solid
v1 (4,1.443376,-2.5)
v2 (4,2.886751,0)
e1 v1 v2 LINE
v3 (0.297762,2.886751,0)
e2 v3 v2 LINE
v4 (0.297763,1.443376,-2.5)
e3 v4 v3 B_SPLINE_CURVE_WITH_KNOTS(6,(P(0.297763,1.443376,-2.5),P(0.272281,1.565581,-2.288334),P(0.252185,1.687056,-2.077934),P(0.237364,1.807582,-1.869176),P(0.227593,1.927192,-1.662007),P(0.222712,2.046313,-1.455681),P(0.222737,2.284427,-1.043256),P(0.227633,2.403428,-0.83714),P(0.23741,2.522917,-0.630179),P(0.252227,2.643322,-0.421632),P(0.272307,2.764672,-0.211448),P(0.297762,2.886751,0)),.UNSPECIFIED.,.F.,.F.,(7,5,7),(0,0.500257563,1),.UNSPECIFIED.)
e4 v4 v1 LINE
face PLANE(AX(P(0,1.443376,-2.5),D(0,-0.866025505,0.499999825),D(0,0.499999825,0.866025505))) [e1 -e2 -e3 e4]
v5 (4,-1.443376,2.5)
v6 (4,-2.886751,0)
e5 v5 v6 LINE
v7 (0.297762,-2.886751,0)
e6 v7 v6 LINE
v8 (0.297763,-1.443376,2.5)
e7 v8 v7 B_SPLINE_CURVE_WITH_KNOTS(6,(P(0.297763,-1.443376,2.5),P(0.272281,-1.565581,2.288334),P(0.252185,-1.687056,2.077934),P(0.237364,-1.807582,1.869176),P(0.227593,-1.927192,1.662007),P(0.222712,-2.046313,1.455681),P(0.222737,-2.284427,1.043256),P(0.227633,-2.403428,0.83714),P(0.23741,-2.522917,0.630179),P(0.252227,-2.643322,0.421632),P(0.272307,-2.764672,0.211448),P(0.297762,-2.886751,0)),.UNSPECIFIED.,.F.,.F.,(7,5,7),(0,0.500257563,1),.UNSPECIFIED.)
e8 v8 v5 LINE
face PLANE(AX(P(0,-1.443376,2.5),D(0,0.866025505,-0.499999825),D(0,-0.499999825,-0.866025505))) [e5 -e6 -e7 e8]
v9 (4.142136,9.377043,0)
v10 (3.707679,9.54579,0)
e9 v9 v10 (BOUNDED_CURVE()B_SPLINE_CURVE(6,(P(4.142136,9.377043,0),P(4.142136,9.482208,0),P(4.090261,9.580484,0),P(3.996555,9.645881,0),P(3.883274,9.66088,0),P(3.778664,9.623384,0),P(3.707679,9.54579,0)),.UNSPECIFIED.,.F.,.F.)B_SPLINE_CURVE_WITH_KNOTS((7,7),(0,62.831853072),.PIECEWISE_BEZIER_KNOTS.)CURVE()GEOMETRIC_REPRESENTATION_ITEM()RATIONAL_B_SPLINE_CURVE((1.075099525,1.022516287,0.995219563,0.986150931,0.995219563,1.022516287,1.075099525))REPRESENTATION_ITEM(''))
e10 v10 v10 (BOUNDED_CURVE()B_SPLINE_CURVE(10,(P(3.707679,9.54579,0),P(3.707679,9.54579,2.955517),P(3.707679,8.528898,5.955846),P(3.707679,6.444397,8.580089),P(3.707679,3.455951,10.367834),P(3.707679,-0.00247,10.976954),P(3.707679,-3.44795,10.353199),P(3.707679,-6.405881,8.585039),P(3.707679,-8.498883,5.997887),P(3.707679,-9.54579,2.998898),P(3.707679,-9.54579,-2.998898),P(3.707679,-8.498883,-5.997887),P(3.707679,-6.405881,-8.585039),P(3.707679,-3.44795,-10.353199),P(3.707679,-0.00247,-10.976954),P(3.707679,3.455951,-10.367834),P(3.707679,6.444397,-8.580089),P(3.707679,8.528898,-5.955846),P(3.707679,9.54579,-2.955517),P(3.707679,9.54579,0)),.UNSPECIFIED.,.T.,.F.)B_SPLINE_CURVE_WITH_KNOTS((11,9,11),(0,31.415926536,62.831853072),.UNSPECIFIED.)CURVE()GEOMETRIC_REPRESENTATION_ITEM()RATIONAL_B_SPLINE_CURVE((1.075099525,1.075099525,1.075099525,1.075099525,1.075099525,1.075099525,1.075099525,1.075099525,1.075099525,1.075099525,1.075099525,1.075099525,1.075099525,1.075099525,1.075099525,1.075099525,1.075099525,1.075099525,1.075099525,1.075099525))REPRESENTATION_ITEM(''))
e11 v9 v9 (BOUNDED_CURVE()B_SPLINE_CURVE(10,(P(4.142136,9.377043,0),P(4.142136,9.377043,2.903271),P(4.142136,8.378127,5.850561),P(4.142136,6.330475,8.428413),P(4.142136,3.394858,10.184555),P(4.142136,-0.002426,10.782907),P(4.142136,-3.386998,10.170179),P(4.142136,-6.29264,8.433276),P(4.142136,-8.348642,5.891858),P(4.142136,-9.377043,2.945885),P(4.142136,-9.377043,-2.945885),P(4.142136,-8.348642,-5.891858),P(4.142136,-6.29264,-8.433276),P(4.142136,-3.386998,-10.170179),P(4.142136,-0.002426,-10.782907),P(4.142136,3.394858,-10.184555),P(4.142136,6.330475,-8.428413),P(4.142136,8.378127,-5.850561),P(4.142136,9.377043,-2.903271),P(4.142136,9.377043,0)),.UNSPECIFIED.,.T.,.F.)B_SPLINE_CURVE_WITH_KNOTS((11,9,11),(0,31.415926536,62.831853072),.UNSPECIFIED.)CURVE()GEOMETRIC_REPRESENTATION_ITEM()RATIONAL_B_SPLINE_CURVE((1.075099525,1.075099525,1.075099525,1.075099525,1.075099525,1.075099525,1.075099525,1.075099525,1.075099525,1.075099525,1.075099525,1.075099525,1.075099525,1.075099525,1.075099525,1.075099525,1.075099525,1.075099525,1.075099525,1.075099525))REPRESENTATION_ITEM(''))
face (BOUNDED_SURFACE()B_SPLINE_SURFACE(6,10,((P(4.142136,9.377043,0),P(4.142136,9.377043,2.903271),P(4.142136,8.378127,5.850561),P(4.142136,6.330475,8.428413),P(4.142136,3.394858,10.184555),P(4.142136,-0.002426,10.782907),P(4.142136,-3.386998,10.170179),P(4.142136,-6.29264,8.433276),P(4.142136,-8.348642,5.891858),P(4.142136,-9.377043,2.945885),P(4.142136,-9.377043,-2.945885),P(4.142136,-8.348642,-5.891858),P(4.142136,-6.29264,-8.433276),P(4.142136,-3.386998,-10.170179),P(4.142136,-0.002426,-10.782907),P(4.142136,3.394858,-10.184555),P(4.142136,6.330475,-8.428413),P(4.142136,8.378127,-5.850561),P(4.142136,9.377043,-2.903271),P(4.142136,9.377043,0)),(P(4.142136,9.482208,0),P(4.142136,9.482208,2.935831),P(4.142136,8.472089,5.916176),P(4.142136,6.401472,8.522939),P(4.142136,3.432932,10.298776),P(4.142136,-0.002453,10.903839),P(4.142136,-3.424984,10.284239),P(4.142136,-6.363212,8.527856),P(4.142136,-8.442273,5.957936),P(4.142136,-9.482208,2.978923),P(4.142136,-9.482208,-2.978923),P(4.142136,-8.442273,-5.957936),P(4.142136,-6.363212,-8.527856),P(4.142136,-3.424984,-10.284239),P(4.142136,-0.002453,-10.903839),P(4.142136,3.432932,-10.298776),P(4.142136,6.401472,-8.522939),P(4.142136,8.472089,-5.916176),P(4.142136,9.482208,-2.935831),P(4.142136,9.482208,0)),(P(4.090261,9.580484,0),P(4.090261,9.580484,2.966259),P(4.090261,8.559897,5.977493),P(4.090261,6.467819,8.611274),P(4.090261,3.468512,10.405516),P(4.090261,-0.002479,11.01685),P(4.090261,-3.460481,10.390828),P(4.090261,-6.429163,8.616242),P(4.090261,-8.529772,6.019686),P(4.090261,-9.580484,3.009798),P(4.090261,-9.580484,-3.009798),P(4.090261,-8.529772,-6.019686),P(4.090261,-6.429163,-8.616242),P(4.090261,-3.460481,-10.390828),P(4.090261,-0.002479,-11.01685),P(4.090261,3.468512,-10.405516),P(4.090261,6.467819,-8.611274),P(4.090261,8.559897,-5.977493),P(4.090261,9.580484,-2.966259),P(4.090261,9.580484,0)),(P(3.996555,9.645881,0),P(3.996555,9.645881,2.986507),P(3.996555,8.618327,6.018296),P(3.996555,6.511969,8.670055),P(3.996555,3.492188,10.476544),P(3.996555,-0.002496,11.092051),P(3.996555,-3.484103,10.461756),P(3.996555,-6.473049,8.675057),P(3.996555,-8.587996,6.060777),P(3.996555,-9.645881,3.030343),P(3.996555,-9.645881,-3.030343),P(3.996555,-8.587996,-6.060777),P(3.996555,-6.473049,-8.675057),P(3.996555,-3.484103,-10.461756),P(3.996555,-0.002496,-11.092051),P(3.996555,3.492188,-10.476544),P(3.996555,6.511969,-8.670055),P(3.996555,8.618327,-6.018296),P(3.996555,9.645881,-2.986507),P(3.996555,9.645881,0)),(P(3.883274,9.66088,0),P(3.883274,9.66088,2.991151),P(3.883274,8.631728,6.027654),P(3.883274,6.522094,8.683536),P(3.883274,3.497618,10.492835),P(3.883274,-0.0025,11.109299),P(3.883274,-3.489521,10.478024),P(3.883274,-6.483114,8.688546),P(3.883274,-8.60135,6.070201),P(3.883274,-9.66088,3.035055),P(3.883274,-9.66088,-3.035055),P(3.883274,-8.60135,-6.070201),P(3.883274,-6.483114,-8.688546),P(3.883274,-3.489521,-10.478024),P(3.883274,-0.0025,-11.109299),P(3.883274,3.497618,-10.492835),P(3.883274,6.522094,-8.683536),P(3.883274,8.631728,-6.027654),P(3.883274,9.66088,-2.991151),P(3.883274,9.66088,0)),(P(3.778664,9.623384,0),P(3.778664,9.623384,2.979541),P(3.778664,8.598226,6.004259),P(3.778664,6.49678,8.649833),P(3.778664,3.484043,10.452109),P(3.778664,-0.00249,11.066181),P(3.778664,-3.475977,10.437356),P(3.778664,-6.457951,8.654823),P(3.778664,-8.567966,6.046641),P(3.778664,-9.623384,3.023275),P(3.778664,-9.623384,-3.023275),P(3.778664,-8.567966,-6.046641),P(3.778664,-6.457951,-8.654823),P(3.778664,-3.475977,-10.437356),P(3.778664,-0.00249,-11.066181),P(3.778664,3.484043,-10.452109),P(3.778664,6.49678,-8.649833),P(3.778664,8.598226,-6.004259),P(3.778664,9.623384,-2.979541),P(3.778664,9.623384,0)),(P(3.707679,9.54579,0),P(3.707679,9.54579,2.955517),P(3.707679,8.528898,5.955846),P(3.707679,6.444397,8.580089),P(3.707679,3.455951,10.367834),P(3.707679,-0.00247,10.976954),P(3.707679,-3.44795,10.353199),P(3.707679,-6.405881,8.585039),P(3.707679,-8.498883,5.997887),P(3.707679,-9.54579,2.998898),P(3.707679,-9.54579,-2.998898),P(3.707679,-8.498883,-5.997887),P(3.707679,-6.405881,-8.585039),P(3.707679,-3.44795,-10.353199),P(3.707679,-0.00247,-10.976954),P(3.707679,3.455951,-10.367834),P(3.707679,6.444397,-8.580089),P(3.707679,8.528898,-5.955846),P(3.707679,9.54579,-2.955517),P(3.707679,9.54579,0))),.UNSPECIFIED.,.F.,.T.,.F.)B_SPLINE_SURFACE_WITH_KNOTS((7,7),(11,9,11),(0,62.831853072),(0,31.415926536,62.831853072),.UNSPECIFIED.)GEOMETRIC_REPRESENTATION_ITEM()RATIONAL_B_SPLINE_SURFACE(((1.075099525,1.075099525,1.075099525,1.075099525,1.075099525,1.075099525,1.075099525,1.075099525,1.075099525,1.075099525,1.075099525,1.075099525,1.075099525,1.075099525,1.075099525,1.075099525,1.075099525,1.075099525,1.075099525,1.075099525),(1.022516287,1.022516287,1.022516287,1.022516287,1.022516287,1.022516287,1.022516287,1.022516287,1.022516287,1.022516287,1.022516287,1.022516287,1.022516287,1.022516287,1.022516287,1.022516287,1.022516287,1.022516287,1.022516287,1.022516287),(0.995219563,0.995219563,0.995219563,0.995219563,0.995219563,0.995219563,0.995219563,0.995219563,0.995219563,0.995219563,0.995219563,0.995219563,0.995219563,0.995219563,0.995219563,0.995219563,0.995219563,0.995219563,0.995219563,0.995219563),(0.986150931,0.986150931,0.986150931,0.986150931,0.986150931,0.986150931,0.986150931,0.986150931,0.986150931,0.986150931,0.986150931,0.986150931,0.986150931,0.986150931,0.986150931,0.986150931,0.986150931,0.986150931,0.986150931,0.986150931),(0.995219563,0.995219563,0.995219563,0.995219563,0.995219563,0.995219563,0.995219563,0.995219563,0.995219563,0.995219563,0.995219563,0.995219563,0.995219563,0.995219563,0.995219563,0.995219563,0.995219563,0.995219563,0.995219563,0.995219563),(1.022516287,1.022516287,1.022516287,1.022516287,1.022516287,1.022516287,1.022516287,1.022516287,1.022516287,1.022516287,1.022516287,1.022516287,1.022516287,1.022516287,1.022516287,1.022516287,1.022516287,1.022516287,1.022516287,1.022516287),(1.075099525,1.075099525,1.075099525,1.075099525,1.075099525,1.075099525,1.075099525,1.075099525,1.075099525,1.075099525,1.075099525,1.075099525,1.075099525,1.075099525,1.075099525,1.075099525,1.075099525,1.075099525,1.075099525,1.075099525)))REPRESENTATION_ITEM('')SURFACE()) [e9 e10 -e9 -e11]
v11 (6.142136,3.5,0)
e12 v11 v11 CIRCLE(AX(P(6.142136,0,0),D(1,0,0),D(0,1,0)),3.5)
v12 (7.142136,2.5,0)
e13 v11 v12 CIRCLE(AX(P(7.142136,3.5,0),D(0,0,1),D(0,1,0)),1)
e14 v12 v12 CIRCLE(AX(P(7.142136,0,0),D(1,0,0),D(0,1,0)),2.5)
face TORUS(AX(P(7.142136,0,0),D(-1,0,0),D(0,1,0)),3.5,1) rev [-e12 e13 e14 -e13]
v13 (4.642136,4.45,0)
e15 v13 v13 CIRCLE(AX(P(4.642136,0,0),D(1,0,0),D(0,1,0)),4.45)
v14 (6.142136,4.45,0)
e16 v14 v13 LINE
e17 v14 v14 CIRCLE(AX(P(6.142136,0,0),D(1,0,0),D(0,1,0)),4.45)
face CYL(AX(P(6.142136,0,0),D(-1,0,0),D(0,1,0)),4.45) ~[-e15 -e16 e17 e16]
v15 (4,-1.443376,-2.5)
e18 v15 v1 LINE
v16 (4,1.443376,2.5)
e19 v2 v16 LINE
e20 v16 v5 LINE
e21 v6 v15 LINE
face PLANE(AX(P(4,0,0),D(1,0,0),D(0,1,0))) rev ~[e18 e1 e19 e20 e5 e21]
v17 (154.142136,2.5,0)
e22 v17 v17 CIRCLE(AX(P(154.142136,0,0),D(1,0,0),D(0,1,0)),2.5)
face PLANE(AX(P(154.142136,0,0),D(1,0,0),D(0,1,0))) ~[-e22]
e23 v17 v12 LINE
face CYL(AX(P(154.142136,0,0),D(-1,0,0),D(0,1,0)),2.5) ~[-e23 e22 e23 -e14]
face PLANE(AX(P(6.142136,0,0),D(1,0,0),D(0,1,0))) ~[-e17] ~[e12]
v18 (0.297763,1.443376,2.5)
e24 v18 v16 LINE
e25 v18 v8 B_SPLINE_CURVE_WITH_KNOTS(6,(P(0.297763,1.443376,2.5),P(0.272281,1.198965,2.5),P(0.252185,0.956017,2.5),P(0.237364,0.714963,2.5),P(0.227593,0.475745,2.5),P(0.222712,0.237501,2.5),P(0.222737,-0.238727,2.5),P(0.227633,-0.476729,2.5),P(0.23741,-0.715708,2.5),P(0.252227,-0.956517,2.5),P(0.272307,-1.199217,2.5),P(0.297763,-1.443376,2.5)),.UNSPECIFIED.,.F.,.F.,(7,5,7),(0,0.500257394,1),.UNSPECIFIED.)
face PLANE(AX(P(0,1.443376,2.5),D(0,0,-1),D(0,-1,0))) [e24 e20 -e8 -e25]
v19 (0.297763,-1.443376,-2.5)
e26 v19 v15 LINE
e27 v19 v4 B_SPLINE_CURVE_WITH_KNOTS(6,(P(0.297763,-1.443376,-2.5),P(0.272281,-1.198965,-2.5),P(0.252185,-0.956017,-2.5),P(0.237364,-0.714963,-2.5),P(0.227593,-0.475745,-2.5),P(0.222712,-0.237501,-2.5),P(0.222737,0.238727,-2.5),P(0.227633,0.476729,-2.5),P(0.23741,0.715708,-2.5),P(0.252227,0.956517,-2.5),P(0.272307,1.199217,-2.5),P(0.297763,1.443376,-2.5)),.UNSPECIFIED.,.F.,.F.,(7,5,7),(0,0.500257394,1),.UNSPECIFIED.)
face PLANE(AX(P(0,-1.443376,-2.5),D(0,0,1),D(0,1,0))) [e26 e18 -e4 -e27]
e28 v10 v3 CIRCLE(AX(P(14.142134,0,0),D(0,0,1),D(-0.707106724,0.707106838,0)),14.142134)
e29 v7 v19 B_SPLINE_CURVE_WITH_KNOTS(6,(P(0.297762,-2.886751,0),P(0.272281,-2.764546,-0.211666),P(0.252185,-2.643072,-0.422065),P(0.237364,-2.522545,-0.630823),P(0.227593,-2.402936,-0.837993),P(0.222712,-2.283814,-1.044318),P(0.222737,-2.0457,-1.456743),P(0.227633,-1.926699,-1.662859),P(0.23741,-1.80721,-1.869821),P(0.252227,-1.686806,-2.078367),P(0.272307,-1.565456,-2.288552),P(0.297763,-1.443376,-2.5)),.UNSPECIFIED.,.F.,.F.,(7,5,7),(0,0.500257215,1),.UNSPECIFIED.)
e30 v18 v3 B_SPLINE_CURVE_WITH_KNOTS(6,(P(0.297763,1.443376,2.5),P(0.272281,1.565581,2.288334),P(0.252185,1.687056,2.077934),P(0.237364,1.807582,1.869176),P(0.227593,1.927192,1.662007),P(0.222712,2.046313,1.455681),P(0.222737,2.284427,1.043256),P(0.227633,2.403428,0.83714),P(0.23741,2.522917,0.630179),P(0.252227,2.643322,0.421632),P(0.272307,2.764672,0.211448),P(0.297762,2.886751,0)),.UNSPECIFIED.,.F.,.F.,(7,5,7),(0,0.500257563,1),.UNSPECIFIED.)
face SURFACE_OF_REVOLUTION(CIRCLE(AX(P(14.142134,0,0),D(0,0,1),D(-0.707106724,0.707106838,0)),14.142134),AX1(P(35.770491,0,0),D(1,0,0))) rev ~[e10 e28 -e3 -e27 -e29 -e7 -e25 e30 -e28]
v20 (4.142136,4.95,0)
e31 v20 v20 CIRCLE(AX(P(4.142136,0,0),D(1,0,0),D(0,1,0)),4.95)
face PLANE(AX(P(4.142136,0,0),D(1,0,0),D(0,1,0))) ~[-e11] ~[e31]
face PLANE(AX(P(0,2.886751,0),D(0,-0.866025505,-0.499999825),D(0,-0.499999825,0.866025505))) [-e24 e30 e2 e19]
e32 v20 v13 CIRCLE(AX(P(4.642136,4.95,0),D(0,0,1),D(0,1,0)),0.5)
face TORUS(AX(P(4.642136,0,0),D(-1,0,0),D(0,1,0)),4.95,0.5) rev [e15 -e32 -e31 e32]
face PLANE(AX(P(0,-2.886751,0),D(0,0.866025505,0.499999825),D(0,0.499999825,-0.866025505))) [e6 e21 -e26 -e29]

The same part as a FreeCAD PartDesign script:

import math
import FreeCAD as App
import Part
import Sketcher
from FreeCAD import Vector
Q = App.Units.Quantity


def edges_at(feature, points):
    """Names of the edges that pass closest to the given points."""
    edges = feature.Shape.Edges
    near = lambda p: min(range(len(edges)), key=lambda i: edges[i].distToShape(Part.Vertex(*p))[0])
    return sorted({f"Edge{near(p) + 1}" for p in points})


def add_polygon(sketch, points):
    """Adds a closed chain of lines whose ends are joined by coincident constraints."""
    first, n = sketch.GeometryCount, len(points)
    for a, b in zip(points, points[1:] + points[:1]):
        sketch.addGeometry(Part.LineSegment(App.Vector(*a, 0), App.Vector(*b, 0)), False)
    for i in range(n):
        sketch.addConstraint(Sketcher.Constraint("Coincident", first + i, 2, first + (i + 1) % n, 1))

doc = App.newDocument("Part")
params = doc.addObject("Spreadsheet::Sheet", "Params")
for row, (alias, value) in enumerate([
    ("sketch1_width", "148 mm"),
    ("sketch1_width2", "2 mm"),
    ("sketch1_height", "2.5 mm"),
    ("sketch1_height2", "1.95 mm"),
    ("revolution_angle", "360 deg"),
    ("fillet_radius", "0.25 mm"),
    ("fillet2_radius", "0.5 mm"),
    ("fillet3_radius", "1 mm"),
    ("pocket1_length", "4 mm"),
], start=1):
    params.set(f"A{row}", alias)
    params.set(f"B{row}", "=" + value)
    params.setAlias(f"B{row}", alias)

body = doc.addObject("PartDesign::Body", "Body")

# Sketch on XY plane
sketch1 = body.newObject("Sketcher::SketchObject", "Sketch")
sketch1.AttachmentSupport = (doc.getObject("XY_Plane"), [""])
sketch1.MapMode = "FlatFace"
sketch1.addGeometry(Part.LineSegment(Vector(0, 0, 0), Vector(154.1, 0, 0)), False)
sketch1.addGeometry(Part.LineSegment(Vector(154.1, 0, 0), Vector(154.1, 2.5, 0)), False)
sketch1.addGeometry(Part.LineSegment(Vector(154.1, 2.5, 0), Vector(6.1, 2.5, 0)), False)
sketch1.addGeometry(Part.LineSegment(Vector(6.1, 2.5, 0), Vector(6.1, 4.5, 0)), False)
sketch1.addGeometry(Part.LineSegment(Vector(6.1, 4.5, 0), Vector(4.1, 4.5, 0)), False)
sketch1.addGeometry(Part.LineSegment(Vector(4.1, 4.5, 0), Vector(4.1, 10, 0)), False)
sketch1.addGeometry(Part.ArcOfCircle(Part.Circle(Vector(14.1, 0, 0), Vector(0, 0, 1), 14.1), math.radians(135), math.radians(180)), False)
sketch1.addConstraint(Sketcher.Constraint("Coincident", 0, 2, 1, 1))
sketch1.addConstraint(Sketcher.Constraint("Coincident", 1, 2, 2, 1))
sketch1.addConstraint(Sketcher.Constraint("Coincident", 2, 2, 3, 1))
sketch1.addConstraint(Sketcher.Constraint("Coincident", 3, 2, 4, 1))
sketch1.addConstraint(Sketcher.Constraint("Coincident", 4, 2, 5, 1))
sketch1.addConstraint(Sketcher.Constraint("Coincident", 5, 2, 6, 1))
sketch1.addConstraint(Sketcher.Constraint("Coincident", 6, 2, 0, 1))
sketch1.addConstraint(Sketcher.Constraint("Horizontal", 0))
sketch1.addConstraint(Sketcher.Constraint("Vertical", 1))
sketch1.addConstraint(Sketcher.Constraint("Horizontal", 2))
sketch1.addConstraint(Sketcher.Constraint("Vertical", 3))
sketch1.addConstraint(Sketcher.Constraint("Horizontal", 4))
sketch1.addConstraint(Sketcher.Constraint("Vertical", 5))
sketch1.addConstraint(Sketcher.Constraint("Coincident", 6, 2, -1, 1))
sketch1.addConstraint(Sketcher.Constraint("PointOnObject", 6, 3, -1))
sketch1.addConstraint(Sketcher.Constraint("DistanceX", 2, 2, 2, 1, Q("148 mm")))
sketch1.addConstraint(Sketcher.Constraint("DistanceX", 4, 2, 4, 1, Q("2 mm")))
sketch1.addConstraint(Sketcher.Constraint("DistanceY", 1, 1, 1, 2, Q("2.5 mm")))
sketch1.addConstraint(Sketcher.Constraint("DistanceY", -1, 1, 5, 2, Q("10 mm")))
sketch1.addConstraint(Sketcher.Constraint("DistanceX", 6, 3, 0, 2, Q("140.000002 mm")))
sketch1.addConstraint(Sketcher.Constraint("DistanceY", 3, 1, 3, 2, Q("1.95 mm")))
sketch1.setExpression("Constraints[15]", "Params.sketch1_width")
sketch1.setExpression("Constraints[16]", "Params.sketch1_width2")
sketch1.setExpression("Constraints[17]", "Params.sketch1_height")
sketch1.setExpression("Constraints[20]", "Params.sketch1_height2")
revolution = body.newObject("PartDesign::Revolution", "Revolution")
revolution.Profile = sketch1
revolution.ReferenceAxis = (sketch1, ["H_Axis"])
revolution.setExpression("Angle", "Params.revolution_angle")
doc.recompute()

fillet = body.newObject("PartDesign::Fillet", "Fillet")
fillet.Base = (revolution, edges_at(revolution, [(4.142, -10, 0)]))
fillet.setExpression("Radius", "Params.fillet_radius")
doc.recompute()

fillet2 = body.newObject("PartDesign::Fillet", "Fillet001")
fillet2.Base = (fillet, edges_at(fillet, [(4.142, -4.45, 0)]))
fillet2.setExpression("Radius", "Params.fillet2_radius")
doc.recompute()

fillet3 = body.newObject("PartDesign::Fillet", "Fillet002")
fillet3.Base = (fillet2, edges_at(fillet2, [(6.142, -2.5, 0)]))
fillet3.setExpression("Radius", "Params.fillet3_radius")

# Sketch on YZ plane
sketch2 = body.newObject("Sketcher::SketchObject", "Sketch001")
sketch2.AttachmentSupport = (doc.getObject("YZ_Plane"), [""])
sketch2.MapMode = "FlatFace"
add_polygon(sketch2, [(-2.9, 0), (-1.4, -2.5), (1.4, -2.5), (2.9, 0), (1.4, 2.5), (-1.4, 2.5)])  # lines 0-5
sketch2.addConstraint(Sketcher.Constraint("Horizontal", 1))
sketch2.addConstraint(Sketcher.Constraint("Horizontal", 4))
sketch2.addConstraint(Sketcher.Constraint("Symmetric", 0, 2, 3, 2, -1, 1))
sketch2.addConstraint(Sketcher.Constraint("Symmetric", 2, 2, 5, 2, -1, 1))
sketch2.addConstraint(Sketcher.Constraint("PointOnObject", 2, 2, -1))
sketch2.addConstraint(Sketcher.Constraint("Parallel", 2, 5))
sketch2.addConstraint(Sketcher.Constraint("Vertical", 1, 2, 3, 2))
sketch2.addConstraint(Sketcher.Constraint("Angle", 0, Q("-60.000012 deg")))
sketch2.addConstraint(Sketcher.Constraint("DistanceY", 1, 2, 3, 2, Q("5 mm")))
sketch2.addConstraint(Sketcher.Constraint("DistanceX", 1, 1, 1, 2, Q("2.886752 mm")))
pocket1 = body.newObject("PartDesign::Pocket", "Pocket")
pocket1.Profile = sketch2
pocket1.setExpression("Length", "Params.pocket1_length")
pocket1.Reversed = True

doc.recompute()
